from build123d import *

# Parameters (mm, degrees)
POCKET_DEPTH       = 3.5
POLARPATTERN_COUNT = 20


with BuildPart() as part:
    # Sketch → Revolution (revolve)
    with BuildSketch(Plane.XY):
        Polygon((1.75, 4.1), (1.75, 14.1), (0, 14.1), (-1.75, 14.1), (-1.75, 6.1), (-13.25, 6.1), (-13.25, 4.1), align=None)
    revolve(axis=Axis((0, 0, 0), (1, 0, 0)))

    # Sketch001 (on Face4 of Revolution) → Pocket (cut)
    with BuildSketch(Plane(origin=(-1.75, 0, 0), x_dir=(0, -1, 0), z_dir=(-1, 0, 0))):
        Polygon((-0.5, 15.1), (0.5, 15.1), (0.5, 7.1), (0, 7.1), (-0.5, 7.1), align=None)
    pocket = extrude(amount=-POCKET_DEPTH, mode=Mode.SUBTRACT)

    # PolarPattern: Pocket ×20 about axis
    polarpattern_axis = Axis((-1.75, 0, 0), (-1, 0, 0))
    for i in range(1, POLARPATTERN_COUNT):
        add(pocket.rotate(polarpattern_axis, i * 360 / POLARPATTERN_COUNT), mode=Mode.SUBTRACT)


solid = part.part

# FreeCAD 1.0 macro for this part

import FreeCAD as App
import Part
import Sketcher

V = App.Vector

doc = App.newDocument("Part")
params = doc.addObject("Spreadsheet::Sheet", "Params")
for row, (alias, value) in enumerate([
    ("sketch1_width", "15 mm"),
    ("sketch1_height", "10 mm"),
    ("sketch1_height2", "8 mm"),
    ("sketch1_width2", "3.5 mm"),
    ("revolution_angle", "360 deg"),
    ("sketch2_width", "1 mm"),
    ("sketch2_height", "8 mm"),
    ("pocket1_length", "3.5 mm"),
], start=1):
    params.set(f"A{row}", alias)
    params.set(f"B{row}", "=" + value)
    params.setAlias(f"B{row}", alias)

body = doc.addObject("PartDesign::Body", "Body")

# Sketch on XY plane
sketch1 = body.newObject("Sketcher::SketchObject", "Sketch")
sketch1.AttachmentSupport = (doc.getObject("XY_Plane"), [""])
sketch1.MapMode = "FlatFace"
sketch1.addGeometry([
    Part.LineSegment(V(1.8, 4.1, 0), V(1.8, 14.1, 0)),  # 0
    Part.LineSegment(V(1.8, 14.1, 0), V(-1.8, 14.1, 0)),  # 1
    Part.LineSegment(V(-1.8, 14.1, 0), V(-1.8, 6.1, 0)),  # 2
    Part.LineSegment(V(-1.8, 6.1, 0), V(-13.2, 6.1, 0)),  # 3
    Part.LineSegment(V(-13.2, 6.1, 0), V(-13.2, 4.1, 0)),  # 4
    Part.LineSegment(V(-13.2, 4.1, 0), V(1.8, 4.1, 0)),  # 5
], False)
sketch1.addConstraint([
    Sketcher.Constraint("Coincident", 0, 2, 1, 1),
    Sketcher.Constraint("Coincident", 1, 2, 2, 1),
    Sketcher.Constraint("Coincident", 2, 2, 3, 1),
    Sketcher.Constraint("Coincident", 3, 2, 4, 1),
    Sketcher.Constraint("Coincident", 4, 2, 5, 1),
    Sketcher.Constraint("Coincident", 5, 2, 0, 1),
    Sketcher.Constraint("Vertical", 0),
    Sketcher.Constraint("Horizontal", 1),
    Sketcher.Constraint("Vertical", 2),
    Sketcher.Constraint("Horizontal", 3),
    Sketcher.Constraint("Vertical", 4),
    Sketcher.Constraint("Horizontal", 5),
    Sketcher.Constraint("DistanceX", 5, 1, 5, 2, 15.0),
    Sketcher.Constraint("DistanceY", 0, 1, 0, 2, 10.0),
    Sketcher.Constraint("DistanceY", 2, 2, 2, 1, 8.0),
    Sketcher.Constraint("DistanceX", 1, 2, 1, 1, 3.5),
    Sketcher.Constraint("DistanceY", -1, 1, 0, 2, 14.1),
    Sketcher.Constraint("DistanceX", -1, 1, 0, 2, 1.75),
])
sketch1.setExpression("Constraints[12]", "Params.sketch1_width")
sketch1.setExpression("Constraints[13]", "Params.sketch1_height")
sketch1.setExpression("Constraints[14]", "Params.sketch1_height2")
sketch1.setExpression("Constraints[15]", "Params.sketch1_width2")
revolution = body.newObject("PartDesign::Revolution", "Revolution")
revolution.Profile = sketch1
revolution.ReferenceAxis = (sketch1, ["H_Axis"])
revolution.setExpression("Angle", "Params.revolution_angle")

# Sketch on YZ plane
sketch2 = body.newObject("Sketcher::SketchObject", "Sketch001")
sketch2.AttachmentSupport = (doc.getObject("YZ_Plane"), [""])
sketch2.MapMode = "FlatFace"
sketch2.AttachmentOffset = App.Placement(V(0, 0, -1.75), App.Rotation())
sketch2.addGeometry([
    Part.LineSegment(V(-0.5, 15.1, 0), V(0.5, 15.1, 0)),
    Part.LineSegment(V(0.5, 15.1, 0), V(0.5, 7.1, 0)),
    Part.LineSegment(V(0.5, 7.1, 0), V(-0.5, 7.1, 0)),
    Part.LineSegment(V(-0.5, 7.1, 0), V(-0.5, 15.1, 0)),
], False)
sketch2.addConstraint([
    Sketcher.Constraint("Coincident", 0, 2, 1, 1),
    Sketcher.Constraint("Coincident", 1, 2, 2, 1),
    Sketcher.Constraint("Coincident", 2, 2, 3, 1),
    Sketcher.Constraint("Coincident", 3, 2, 0, 1),
    Sketcher.Constraint("Horizontal", 0),
    Sketcher.Constraint("Vertical", 1),
    Sketcher.Constraint("Horizontal", 2),
    Sketcher.Constraint("Vertical", 3),
    Sketcher.Constraint("DistanceX", 0, 1, 0, 2, 1.0),
    Sketcher.Constraint("DistanceY", 1, 2, 1, 1, 8.0),
    Sketcher.Constraint("DistanceX", -1, 1, 0, 2, 0.5),
    Sketcher.Constraint("DistanceY", -1, 1, 0, 2, 15.1),
])
sketch2.setExpression("Constraints[8]", "Params.sketch2_width")
sketch2.setExpression("Constraints[9]", "Params.sketch2_height")
pocket1 = body.newObject("PartDesign::Pocket", "Pocket")
pocket1.Profile = sketch2
pocket1.setExpression("Length", "Params.pocket1_length")
pocket1.Reversed = True
doc.recompute()

polarpattern = body.newObject("PartDesign::PolarPattern", "PolarPattern")
polarpattern.Originals = [pocket1]
polarpattern.Axis = (doc.getObject("X_Axis"), [""])
polarpattern.Angle = 360
polarpattern.Occurrences = 20
body.Tip = polarpattern

doc.recompute()
